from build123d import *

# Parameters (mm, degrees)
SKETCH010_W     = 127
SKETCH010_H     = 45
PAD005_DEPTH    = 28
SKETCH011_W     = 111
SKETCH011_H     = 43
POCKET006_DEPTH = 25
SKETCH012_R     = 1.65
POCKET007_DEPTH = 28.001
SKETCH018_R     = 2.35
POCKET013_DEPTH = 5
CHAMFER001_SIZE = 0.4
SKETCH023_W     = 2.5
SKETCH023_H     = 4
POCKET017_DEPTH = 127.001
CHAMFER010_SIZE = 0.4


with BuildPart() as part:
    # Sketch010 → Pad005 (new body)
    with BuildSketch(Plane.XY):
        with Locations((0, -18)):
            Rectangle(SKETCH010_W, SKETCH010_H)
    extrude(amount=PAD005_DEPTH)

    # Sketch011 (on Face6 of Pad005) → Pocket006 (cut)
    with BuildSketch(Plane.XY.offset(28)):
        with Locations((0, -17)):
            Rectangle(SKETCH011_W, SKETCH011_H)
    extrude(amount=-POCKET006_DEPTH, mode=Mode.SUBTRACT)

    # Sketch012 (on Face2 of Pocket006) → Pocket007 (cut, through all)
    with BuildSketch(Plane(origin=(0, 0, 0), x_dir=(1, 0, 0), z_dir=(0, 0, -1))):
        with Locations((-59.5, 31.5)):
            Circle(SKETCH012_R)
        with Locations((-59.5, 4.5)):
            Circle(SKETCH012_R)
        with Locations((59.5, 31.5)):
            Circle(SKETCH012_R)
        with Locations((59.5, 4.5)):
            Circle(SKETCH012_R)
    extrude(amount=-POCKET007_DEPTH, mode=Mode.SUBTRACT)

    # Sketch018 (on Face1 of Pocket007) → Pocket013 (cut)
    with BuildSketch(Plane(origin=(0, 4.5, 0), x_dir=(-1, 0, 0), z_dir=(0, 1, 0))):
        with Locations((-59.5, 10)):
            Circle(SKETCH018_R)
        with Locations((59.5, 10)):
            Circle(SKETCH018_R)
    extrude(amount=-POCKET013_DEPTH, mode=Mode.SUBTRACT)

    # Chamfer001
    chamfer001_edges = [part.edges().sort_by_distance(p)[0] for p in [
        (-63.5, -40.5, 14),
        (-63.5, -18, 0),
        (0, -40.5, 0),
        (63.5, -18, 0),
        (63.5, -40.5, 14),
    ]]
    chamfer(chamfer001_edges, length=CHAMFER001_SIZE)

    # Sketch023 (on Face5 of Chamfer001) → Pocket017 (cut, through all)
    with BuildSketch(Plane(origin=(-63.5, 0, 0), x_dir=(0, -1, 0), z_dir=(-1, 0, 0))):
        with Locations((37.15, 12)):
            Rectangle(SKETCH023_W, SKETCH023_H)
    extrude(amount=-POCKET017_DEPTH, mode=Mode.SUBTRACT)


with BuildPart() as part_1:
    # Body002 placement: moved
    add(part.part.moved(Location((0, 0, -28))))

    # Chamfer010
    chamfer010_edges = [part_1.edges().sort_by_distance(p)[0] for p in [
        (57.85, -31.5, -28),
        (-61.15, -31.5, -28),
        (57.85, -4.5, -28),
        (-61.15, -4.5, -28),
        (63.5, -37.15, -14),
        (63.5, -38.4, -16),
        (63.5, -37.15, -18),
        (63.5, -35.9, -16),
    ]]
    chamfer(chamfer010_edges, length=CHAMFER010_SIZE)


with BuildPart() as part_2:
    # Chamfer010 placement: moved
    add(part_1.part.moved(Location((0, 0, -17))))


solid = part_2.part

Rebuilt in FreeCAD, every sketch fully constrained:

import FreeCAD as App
import Part
import Sketcher

V = App.Vector
Q = App.Units.Quantity


def edges_at(feature, points):
    """Names of the edges that pass closest to the given points."""
    edges = feature.Shape.Edges
    near = lambda p: min(range(len(edges)), key=lambda i: edges[i].distToShape(Part.Vertex(*p))[0])
    return sorted({f"Edge{near(p) + 1}" for p in points})


def add_polygon(sketch, points):
    """Adds a closed chain of lines whose ends are joined by coincident constraints."""
    first, n = sketch.GeometryCount, len(points)
    for a, b in zip(points, points[1:] + points[:1]):
        sketch.addGeometry(Part.LineSegment(App.Vector(*a, 0), App.Vector(*b, 0)), False)
    for i in range(n):
        sketch.addConstraint(Sketcher.Constraint("Coincident", first + i, 2, first + (i + 1) % n, 1))

doc = App.newDocument("Part")
body = doc.addObject("PartDesign::Body", "Body")

sketch1 = doc.addObject("Sketcher::SketchObject", "Sketch")
body.addObject(sketch1)
sketch1.AttachmentSupport = (doc.XY_Plane, [""])
sketch1.MapMode = "FlatFace"
add_polygon(sketch1, [(-63.5, 4.5), (-63.5, -40.5), (63.5, -40.5), (63.5, 4.5)])
sketch1.addConstraint([
    Sketcher.Constraint("Vertical", 0),
    Sketcher.Constraint("Horizontal", 1),
    Sketcher.Constraint("Vertical", 2),
    Sketcher.Constraint("Horizontal", 3),
    Sketcher.Constraint("DistanceX", 1, 1, 1, 2, Q("127 mm")),
    Sketcher.Constraint("DistanceY", 0, 2, 0, 1, Q("45 mm")),
    Sketcher.Constraint("DistanceX", 0, 2, -1, 1, Q("63.5 mm")),
    Sketcher.Constraint("DistanceY", 0, 2, -1, 1, Q("40.5 mm")),
])
pad1 = doc.addObject("PartDesign::Pad", "Pad")
body.addObject(pad1)
pad1.Profile = sketch1
pad1.Length = 28

sketch2 = doc.addObject("Sketcher::SketchObject", "Sketch001")
body.addObject(sketch2)
sketch2.AttachmentSupport = (doc.XY_Plane, [""])
sketch2.MapMode = "FlatFace"
sketch2.AttachmentOffset = App.Placement(V(0, 0, 28), App.Rotation())
add_polygon(sketch2, [(-55.5, 4.5), (-55.5, -38.5), (55.5, -38.5), (55.5, 4.5)])
sketch2.addConstraint([
    Sketcher.Constraint("Vertical", 0),
    Sketcher.Constraint("Horizontal", 1),
    Sketcher.Constraint("Vertical", 2),
    Sketcher.Constraint("Horizontal", 3),
    Sketcher.Constraint("DistanceX", 1, 1, 1, 2, Q("111 mm")),
    Sketcher.Constraint("DistanceY", 0, 2, 0, 1, Q("43 mm")),
    Sketcher.Constraint("DistanceX", 0, 2, -1, 1, Q("55.5 mm")),
    Sketcher.Constraint("DistanceY", 0, 2, -1, 1, Q("38.5 mm")),
])
pocket1 = doc.addObject("PartDesign::Pocket", "Pocket")
body.addObject(pocket1)
pocket1.Profile = sketch2
pocket1.Length = 25

sketch3 = doc.addObject("Sketcher::SketchObject", "Sketch002")
body.addObject(sketch3)
sketch3.AttachmentSupport = (doc.XY_Plane, [""])
sketch3.MapMode = "FlatFace"
sketch3.addGeometry([
    Part.Circle(V(-59.5, -31.5, 0), V(0, 0, 1), 1.65),
    Part.Circle(V(-59.5, -4.5, 0), V(0, 0, 1), 1.65),
    Part.Circle(V(59.5, -31.5, 0), V(0, 0, 1), 1.65),
    Part.Circle(V(59.5, -4.5, 0), V(0, 0, 1), 1.65),
], False)
sketch3.addConstraint([
    Sketcher.Constraint("Equal", 0, 1),
    Sketcher.Constraint("Equal", 1, 2),
    Sketcher.Constraint("Equal", 2, 3),
    Sketcher.Constraint("Symmetric", 0, 3, 2, 3, -2),
    Sketcher.Constraint("Symmetric", 1, 3, 3, 3, -2),
    Sketcher.Constraint("Vertical", 0, 3, 1, 3),
    Sketcher.Constraint("Diameter", 0, Q("3.3 mm")),
    Sketcher.Constraint("DistanceY", 0, 3, 1, 3, Q("27 mm")),
    Sketcher.Constraint("DistanceX", 0, 3, 2, 3, Q("119 mm")),
    Sketcher.Constraint("DistanceY", 0, 3, -1, 1, Q("31.5 mm")),
])
pocket2 = doc.addObject("PartDesign::Pocket", "Pocket001")
body.addObject(pocket2)
pocket2.Profile = sketch3
pocket2.Type = "ThroughAll"
pocket2.Reversed = True

sketch4 = doc.addObject("Sketcher::SketchObject", "Sketch003")
body.addObject(sketch4)
sketch4.AttachmentSupport = (doc.XZ_Plane, [""])
sketch4.MapMode = "FlatFace"
sketch4.AttachmentOffset = App.Placement(V(0, 0, -4.5), App.Rotation())
sketch4.addGeometry([
    Part.Circle(V(59.5, 10, 0), V(0, 0, 1), 2.35),
    Part.Circle(V(-59.5, 10, 0), V(0, 0, 1), 2.35),
], False)
sketch4.addConstraint([
    Sketcher.Constraint("Equal", 0, 1),
    Sketcher.Constraint("Symmetric", 0, 3, 1, 3, -2),
    Sketcher.Constraint("Diameter", 0, Q("4.7 mm")),
    Sketcher.Constraint("DistanceY", -1, 1, 0, 3, Q("10 mm")),
    Sketcher.Constraint("DistanceX", 1, 3, 0, 3, Q("119 mm")),
])
pocket3 = doc.addObject("PartDesign::Pocket", "Pocket002")
body.addObject(pocket3)
pocket3.Profile = sketch4
pocket3.Length = 5
pocket3.Reversed = True
doc.recompute()

chamfer = doc.addObject("PartDesign::Chamfer", "Chamfer")
body.addObject(chamfer)
chamfer.Base = (pocket3, edges_at(pocket3, [
    (-63.5, -40.5, 14),
    (-63.5, -18, 0),
    (0, -40.5, 0),
    (63.5, -18, 0),
    (63.5, -40.5, 14),
]))
chamfer.Size = 0.4

sketch5 = doc.addObject("Sketcher::SketchObject", "Sketch004")
body.addObject(sketch5)
sketch5.AttachmentSupport = (doc.YZ_Plane, [""])
sketch5.MapMode = "FlatFace"
sketch5.AttachmentOffset = App.Placement(V(0, 0, -63.5), App.Rotation())
add_polygon(sketch5, [(-35.9, 14), (-35.9, 10), (-38.4, 10), (-38.4, 14)])
sketch5.addConstraint([
    Sketcher.Constraint("Vertical", 0),
    Sketcher.Constraint("Horizontal", 1),
    Sketcher.Constraint("Vertical", 2),
    Sketcher.Constraint("Horizontal", 3),
    Sketcher.Constraint("DistanceY", 0, 2, 0, 1, Q("4 mm")),
    Sketcher.Constraint("DistanceX", 1, 2, 1, 1, Q("2.5 mm")),
    Sketcher.Constraint("DistanceY", -1, 1, 0, 2, Q("10 mm")),
    Sketcher.Constraint("DistanceX", 0, 2, -1, 1, Q("35.9 mm")),
])
pocket4 = doc.addObject("PartDesign::Pocket", "Pocket003")
body.addObject(pocket4)
pocket4.Profile = sketch5
pocket4.Type = "ThroughAll"
pocket4.Reversed = True
body2 = doc.addObject("PartDesign::Body", "Body001")
doc.recompute()

body.Placement = App.Placement(V(0, 0, -28), App.Rotation(V(0, 0, 1), 0))
boolean = doc.addObject("PartDesign::Boolean", "Boolean")
body2.addObject(boolean)
boolean.Type = "Fuse"
boolean.addObjects([body])
doc.recompute()

chamfer2 = doc.addObject("PartDesign::Chamfer", "Chamfer001")
body2.addObject(chamfer2)
chamfer2.Base = (boolean, edges_at(boolean, [
    (57.85, -31.5, -28),
    (-61.15, -31.5, -28),
    (57.85, -4.5, -28),
    (-61.15, -4.5, -28),
    (63.5, -37.15, -14),
    (63.5, -38.4, -16),
    (63.5, -37.15, -18),
    (63.5, -35.9, -16),
]))
chamfer2.Size = 0.4
body3 = doc.addObject("PartDesign::Body", "Body002")
doc.recompute()

body2.Placement = App.Placement(V(0, 0, -17), App.Rotation(V(0, 0, 1), 0))
boolean2 = doc.addObject("PartDesign::Boolean", "Boolean001")
body3.addObject(boolean2)
boolean2.Type = "Fuse"
boolean2.addObjects([body2])

doc.recompute()
